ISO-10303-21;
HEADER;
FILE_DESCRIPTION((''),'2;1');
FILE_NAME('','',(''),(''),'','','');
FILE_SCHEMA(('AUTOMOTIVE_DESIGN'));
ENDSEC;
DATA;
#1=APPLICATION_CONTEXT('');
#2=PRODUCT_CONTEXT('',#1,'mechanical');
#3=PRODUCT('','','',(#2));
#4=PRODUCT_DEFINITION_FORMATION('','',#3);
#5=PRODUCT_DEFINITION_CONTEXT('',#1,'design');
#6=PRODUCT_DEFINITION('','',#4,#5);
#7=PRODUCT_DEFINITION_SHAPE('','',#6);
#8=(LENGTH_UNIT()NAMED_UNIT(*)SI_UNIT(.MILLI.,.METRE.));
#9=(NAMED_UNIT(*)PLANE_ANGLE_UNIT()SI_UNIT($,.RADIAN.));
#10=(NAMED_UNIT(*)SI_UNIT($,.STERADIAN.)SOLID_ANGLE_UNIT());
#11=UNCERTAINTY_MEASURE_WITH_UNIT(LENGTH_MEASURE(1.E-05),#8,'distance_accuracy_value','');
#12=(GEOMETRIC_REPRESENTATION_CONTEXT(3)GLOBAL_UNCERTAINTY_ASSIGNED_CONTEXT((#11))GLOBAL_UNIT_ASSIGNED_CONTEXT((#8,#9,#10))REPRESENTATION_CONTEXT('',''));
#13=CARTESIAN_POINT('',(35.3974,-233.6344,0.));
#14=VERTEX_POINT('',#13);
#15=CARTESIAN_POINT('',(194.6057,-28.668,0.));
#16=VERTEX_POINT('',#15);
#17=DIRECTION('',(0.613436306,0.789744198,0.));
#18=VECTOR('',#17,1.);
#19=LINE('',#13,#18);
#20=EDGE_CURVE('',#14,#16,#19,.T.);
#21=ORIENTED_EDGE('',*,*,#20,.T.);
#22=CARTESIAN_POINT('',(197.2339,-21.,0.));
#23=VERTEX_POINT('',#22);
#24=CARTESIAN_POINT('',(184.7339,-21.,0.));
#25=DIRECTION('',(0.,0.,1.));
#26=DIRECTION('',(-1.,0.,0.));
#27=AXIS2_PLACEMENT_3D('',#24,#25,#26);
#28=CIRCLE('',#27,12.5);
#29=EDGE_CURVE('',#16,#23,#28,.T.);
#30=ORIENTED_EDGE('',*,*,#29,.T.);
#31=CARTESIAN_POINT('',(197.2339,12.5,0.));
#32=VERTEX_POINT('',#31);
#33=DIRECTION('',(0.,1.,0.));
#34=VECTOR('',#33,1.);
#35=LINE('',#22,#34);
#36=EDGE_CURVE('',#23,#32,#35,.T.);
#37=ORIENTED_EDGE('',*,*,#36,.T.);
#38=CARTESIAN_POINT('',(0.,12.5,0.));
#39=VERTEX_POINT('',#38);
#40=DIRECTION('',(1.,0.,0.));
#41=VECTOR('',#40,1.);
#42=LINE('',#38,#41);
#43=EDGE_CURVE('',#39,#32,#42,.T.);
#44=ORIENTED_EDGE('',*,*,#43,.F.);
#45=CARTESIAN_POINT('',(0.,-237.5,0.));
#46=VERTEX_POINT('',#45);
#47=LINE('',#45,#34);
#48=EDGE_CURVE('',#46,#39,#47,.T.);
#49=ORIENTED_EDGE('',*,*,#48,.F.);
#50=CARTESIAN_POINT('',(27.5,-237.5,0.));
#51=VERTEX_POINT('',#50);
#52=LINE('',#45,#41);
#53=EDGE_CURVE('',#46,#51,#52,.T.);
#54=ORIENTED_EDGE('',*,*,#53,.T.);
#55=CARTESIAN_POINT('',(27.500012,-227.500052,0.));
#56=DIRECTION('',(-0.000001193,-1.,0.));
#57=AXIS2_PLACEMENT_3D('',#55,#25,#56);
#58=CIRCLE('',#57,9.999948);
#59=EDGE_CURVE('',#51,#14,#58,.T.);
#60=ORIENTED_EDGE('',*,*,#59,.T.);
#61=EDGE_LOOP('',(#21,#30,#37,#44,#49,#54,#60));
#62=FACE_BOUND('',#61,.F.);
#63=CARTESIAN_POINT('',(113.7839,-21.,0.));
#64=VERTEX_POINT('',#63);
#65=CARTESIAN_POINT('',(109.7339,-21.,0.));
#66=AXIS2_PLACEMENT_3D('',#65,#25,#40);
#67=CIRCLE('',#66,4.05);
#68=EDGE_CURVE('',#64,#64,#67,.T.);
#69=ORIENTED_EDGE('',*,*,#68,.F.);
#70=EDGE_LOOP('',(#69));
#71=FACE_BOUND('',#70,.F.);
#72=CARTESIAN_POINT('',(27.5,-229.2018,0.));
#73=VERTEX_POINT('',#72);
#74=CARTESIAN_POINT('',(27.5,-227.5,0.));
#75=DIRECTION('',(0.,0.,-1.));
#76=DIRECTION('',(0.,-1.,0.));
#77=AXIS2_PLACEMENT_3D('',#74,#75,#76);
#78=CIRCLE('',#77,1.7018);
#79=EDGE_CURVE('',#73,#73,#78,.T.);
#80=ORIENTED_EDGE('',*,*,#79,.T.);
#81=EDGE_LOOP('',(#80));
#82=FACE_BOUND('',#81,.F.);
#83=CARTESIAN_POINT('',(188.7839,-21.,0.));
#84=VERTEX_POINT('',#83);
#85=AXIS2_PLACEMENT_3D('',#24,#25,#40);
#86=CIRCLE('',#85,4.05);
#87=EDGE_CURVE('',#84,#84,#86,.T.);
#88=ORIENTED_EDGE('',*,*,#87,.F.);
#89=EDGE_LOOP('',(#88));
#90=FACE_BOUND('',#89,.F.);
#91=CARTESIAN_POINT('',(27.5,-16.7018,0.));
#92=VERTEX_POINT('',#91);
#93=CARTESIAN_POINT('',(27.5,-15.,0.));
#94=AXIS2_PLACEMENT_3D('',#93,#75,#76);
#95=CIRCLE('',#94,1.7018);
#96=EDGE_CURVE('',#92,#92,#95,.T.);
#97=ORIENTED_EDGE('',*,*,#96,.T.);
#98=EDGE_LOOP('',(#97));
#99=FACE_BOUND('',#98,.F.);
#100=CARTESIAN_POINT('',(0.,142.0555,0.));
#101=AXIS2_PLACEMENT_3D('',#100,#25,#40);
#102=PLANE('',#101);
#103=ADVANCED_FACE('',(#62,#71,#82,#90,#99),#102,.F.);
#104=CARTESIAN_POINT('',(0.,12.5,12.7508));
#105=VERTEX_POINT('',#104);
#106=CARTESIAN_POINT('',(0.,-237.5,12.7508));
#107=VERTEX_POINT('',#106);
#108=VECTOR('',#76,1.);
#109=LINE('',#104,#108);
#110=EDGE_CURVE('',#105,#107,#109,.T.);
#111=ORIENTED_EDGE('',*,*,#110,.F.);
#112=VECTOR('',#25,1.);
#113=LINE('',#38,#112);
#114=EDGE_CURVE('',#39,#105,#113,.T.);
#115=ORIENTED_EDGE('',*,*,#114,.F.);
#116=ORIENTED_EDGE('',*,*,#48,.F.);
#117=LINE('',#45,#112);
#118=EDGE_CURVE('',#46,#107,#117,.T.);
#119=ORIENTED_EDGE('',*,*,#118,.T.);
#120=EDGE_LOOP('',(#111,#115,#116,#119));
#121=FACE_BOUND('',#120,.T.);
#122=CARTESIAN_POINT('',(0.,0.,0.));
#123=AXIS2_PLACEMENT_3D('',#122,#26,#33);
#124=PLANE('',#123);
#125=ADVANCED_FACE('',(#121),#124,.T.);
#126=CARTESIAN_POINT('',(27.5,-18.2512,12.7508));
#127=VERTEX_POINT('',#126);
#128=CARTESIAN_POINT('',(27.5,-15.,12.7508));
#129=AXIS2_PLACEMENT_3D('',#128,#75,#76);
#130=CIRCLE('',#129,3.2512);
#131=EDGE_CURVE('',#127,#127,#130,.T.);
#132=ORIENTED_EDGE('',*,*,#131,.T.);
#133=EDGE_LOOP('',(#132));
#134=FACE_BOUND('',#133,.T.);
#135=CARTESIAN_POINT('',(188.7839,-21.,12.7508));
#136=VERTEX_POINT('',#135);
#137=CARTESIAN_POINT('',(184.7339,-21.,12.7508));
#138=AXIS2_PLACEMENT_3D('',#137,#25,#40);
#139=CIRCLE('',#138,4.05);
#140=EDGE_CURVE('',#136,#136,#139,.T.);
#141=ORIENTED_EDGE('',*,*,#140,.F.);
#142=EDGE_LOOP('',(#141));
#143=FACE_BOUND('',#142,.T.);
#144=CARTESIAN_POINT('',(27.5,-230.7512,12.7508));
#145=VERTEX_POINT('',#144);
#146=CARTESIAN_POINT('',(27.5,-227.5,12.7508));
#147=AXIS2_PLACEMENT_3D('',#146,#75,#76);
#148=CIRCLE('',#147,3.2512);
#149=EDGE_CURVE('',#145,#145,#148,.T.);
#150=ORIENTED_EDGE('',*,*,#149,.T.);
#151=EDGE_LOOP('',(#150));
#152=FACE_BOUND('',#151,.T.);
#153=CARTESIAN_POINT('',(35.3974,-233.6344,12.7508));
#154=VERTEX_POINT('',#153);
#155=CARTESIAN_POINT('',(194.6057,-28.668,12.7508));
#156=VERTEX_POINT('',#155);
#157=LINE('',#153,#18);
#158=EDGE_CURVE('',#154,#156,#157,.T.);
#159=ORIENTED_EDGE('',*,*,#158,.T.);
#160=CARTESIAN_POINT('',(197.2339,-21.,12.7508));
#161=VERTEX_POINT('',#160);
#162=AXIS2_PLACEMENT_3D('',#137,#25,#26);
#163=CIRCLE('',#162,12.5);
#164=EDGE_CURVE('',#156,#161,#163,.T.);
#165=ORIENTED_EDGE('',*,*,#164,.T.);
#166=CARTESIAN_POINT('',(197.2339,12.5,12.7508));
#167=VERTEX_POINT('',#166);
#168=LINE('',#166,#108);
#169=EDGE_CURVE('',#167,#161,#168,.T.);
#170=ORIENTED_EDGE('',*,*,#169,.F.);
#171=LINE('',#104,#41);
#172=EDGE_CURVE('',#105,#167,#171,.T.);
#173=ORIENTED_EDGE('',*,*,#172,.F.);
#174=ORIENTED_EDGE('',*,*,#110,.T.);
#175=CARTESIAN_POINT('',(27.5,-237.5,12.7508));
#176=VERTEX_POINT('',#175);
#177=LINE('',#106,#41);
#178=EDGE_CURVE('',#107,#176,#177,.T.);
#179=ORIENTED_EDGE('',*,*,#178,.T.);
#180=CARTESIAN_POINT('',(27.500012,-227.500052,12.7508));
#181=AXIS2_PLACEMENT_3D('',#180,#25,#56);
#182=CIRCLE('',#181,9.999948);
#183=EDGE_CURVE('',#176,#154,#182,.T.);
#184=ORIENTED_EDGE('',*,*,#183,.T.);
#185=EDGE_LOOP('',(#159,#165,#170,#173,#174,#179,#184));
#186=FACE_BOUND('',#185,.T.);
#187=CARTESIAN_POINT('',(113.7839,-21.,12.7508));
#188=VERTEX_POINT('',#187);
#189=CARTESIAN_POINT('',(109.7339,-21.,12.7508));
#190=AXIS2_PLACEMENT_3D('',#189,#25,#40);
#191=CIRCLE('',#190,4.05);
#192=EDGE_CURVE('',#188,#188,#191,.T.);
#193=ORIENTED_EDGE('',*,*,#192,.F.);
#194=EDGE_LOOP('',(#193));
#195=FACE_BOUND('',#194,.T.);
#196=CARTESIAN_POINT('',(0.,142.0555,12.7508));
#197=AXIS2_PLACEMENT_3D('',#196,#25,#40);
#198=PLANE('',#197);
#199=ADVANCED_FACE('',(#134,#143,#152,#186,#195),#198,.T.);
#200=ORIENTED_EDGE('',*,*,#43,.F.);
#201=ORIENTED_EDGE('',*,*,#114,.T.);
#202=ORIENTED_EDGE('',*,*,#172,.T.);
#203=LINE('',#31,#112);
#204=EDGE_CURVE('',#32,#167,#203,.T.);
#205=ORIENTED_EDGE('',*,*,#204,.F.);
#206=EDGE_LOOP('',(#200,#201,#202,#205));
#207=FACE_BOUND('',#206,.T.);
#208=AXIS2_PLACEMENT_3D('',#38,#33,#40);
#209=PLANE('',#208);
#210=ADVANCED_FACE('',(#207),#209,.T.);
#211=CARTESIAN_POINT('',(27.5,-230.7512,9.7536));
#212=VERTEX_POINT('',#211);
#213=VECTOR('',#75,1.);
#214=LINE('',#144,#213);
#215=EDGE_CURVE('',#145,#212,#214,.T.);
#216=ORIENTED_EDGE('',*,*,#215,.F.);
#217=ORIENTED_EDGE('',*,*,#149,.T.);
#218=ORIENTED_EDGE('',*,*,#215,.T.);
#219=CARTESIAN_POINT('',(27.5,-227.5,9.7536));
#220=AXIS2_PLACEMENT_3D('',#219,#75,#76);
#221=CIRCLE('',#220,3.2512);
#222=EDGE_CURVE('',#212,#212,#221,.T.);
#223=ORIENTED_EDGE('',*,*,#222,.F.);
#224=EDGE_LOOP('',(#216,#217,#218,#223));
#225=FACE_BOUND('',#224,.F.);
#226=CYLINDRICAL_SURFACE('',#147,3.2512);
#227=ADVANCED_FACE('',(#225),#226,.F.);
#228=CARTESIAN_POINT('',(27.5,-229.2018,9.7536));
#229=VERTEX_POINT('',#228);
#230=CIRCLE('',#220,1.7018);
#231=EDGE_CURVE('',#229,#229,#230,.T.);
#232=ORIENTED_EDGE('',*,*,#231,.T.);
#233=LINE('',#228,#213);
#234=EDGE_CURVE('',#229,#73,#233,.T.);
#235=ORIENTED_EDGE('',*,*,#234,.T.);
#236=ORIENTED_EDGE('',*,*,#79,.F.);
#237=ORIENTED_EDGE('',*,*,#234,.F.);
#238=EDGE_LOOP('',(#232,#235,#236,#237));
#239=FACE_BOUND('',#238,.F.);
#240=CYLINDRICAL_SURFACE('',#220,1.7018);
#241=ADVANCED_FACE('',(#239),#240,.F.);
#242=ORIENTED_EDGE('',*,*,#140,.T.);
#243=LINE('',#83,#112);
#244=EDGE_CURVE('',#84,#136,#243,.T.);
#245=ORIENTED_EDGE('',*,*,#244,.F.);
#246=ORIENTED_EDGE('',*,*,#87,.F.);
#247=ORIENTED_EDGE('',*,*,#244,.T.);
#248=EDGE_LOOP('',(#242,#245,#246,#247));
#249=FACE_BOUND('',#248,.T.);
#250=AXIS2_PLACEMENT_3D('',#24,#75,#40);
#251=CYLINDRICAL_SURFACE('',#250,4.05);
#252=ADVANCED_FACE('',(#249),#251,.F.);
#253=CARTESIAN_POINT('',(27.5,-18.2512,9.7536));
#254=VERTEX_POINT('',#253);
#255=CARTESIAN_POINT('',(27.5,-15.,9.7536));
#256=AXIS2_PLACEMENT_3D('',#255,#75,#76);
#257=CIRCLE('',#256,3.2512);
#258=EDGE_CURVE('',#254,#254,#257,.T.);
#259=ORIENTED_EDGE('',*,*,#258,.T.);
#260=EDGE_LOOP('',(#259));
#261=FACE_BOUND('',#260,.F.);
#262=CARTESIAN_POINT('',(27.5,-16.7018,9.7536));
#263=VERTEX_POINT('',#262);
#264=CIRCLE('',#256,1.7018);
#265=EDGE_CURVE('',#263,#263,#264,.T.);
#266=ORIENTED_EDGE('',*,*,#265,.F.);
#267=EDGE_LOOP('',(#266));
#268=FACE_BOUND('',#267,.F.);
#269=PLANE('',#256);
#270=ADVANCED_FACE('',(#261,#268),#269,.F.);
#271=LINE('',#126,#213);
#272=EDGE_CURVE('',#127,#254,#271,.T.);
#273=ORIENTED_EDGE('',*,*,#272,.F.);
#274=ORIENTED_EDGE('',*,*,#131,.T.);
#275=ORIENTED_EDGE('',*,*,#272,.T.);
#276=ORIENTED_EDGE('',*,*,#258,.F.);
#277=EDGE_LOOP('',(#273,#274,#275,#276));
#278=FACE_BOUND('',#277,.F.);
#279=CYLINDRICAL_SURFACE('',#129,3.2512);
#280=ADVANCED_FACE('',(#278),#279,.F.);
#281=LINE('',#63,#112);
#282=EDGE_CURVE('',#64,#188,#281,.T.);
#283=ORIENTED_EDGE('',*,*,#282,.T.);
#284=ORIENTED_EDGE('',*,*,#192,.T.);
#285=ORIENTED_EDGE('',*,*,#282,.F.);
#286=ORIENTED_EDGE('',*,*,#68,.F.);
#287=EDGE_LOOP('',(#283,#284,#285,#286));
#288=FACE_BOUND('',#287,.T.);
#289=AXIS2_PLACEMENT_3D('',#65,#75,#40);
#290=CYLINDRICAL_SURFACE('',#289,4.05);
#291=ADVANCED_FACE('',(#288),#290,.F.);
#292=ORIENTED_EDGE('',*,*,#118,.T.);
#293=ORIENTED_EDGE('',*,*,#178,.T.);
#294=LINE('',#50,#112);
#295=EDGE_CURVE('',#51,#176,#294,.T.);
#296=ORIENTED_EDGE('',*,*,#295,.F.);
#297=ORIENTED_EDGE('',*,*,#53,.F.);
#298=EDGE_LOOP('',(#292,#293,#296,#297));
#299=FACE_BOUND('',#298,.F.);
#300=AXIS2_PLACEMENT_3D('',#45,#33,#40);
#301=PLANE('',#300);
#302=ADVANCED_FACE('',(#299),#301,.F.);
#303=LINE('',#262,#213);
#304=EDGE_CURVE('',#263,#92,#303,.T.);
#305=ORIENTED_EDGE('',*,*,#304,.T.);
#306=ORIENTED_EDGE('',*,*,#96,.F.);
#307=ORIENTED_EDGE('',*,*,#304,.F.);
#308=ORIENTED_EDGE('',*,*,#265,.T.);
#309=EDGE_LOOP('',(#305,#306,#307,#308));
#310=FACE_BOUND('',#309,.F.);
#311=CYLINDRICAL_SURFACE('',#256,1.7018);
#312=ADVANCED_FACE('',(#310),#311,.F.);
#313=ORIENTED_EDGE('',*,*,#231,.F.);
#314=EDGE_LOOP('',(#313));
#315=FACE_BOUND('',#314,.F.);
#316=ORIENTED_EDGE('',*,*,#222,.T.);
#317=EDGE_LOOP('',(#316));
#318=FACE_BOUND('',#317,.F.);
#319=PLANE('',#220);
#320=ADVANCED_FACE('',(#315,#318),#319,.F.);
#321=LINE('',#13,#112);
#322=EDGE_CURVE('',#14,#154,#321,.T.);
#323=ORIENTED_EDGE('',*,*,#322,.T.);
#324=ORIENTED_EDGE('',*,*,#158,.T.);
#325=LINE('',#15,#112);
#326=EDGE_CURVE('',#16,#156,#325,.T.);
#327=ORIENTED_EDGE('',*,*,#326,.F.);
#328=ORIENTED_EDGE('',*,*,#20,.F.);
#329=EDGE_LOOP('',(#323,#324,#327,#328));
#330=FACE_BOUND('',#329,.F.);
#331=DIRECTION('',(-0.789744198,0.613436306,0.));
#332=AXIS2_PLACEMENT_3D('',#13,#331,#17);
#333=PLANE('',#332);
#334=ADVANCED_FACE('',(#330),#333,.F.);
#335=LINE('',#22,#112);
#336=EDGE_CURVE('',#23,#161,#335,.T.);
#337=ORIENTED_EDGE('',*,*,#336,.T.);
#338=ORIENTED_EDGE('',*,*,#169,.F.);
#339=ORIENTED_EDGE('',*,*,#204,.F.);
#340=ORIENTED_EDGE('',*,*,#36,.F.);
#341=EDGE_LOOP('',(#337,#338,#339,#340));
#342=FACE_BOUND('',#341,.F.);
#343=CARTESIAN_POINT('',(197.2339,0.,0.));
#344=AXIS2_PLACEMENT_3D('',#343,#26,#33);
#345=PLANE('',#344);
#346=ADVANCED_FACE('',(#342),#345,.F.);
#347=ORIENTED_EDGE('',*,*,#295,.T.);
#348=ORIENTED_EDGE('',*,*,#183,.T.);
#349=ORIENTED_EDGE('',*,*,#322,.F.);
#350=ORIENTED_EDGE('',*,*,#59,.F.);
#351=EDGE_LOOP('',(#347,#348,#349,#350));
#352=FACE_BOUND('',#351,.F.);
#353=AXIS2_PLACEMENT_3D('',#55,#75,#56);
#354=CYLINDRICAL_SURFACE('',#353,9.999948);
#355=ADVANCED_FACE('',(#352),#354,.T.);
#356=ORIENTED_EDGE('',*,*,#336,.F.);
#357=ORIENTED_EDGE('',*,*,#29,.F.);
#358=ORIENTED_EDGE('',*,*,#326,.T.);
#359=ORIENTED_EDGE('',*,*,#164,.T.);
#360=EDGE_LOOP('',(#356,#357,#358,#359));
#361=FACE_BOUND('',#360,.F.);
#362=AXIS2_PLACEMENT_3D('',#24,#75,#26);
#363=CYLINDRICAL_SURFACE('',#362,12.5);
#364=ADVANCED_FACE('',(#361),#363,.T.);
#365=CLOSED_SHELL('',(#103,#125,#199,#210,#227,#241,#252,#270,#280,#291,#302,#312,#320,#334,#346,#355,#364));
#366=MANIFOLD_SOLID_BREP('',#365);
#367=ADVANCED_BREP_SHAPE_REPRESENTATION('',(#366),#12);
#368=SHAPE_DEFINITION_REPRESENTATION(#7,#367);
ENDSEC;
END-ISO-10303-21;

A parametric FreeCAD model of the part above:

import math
import FreeCAD as App
import Part
import Sketcher

V = App.Vector
Q = App.Units.Quantity

doc = App.newDocument("Part")
params = doc.addObject("Spreadsheet::Sheet", "Params")
for row, (alias, value) in enumerate([
    ("sketch1_radius", "10 mm"),
    ("sketch1_height", "250 mm"),
    ("sketch1_width", "27.5 mm"),
    ("sketch1_diameter", "8.1 mm"),
    ("sketch1_radius2", "12.5 mm"),
    ("pad1_length", "12.7508 mm"),
    ("sketch2_diameter", "3.1 mm"),
    ("hole_diameter", "3.4036 mm"),
    ("hole_cbore_diameter", "6.5024 mm"),
    ("hole_cbore_depth", "2.9972 mm"),
], start=1):
    params.set(f"A{row}", alias)
    params.set(f"B{row}", "=" + value)
    params.setAlias(f"B{row}", alias)

body = doc.addObject("PartDesign::Body", "Body")

# Sketch on XY plane
sketch1 = body.newObject("Sketcher::SketchObject", "Sketch")
sketch1.AttachmentSupport = (doc.getObject("XY_Plane"), [""])
sketch1.MapMode = "FlatFace"
sketch1.addGeometry(Part.LineSegment(V(197.2, 12.5, 0), V(0, 12.5, 0)), False)
sketch1.addGeometry(Part.LineSegment(V(0, 12.5, 0), V(0, -237.5, 0)), False)
sketch1.addGeometry(Part.LineSegment(V(0, -237.5, 0), V(27.5, -237.5, 0)), False)
sketch1.addGeometry(Part.ArcOfCircle(Part.Circle(V(27.5, -227.5, 0), V(0, 0, 1), 10), math.radians(-90), math.radians(-38)), False)
sketch1.addGeometry(Part.LineSegment(V(35.4, -233.6, 0), V(194.6, -28.7, 0)), False)
sketch1.addGeometry(Part.ArcOfCircle(Part.Circle(V(184.7, -21, 0), V(0, 0, 1), 12.5), math.radians(-38), math.radians(0)), False)
sketch1.addGeometry(Part.LineSegment(V(197.2, -21, 0), V(197.2, 12.5, 0)), False)
sketch1.addGeometry(Part.Circle(V(184.7, -21, 0), V(0, 0, 1), 4), False)
sketch1.addGeometry(Part.Circle(V(109.7, -21, 0), V(0, 0, 1), 4), False)
sketch1.addConstraint(Sketcher.Constraint("Coincident", 0, 2, 1, 1))
sketch1.addConstraint(Sketcher.Constraint("Coincident", 1, 2, 2, 1))
sketch1.addConstraint(Sketcher.Constraint("Tangent", 2, 2, 3, 1))
sketch1.addConstraint(Sketcher.Constraint("Tangent", 3, 2, 4, 1))
sketch1.addConstraint(Sketcher.Constraint("Tangent", 4, 2, 5, 1))
sketch1.addConstraint(Sketcher.Constraint("Tangent", 5, 2, 6, 1))
sketch1.addConstraint(Sketcher.Constraint("Coincident", 6, 2, 0, 1))
sketch1.addConstraint(Sketcher.Constraint("Horizontal", 0))
sketch1.addConstraint(Sketcher.Constraint("Vertical", 1))
sketch1.addConstraint(Sketcher.Constraint("Horizontal", 2))
sketch1.addConstraint(Sketcher.Constraint("Vertical", 6))
sketch1.addConstraint(Sketcher.Constraint("Coincident", 7, 3, 5, 3))
sketch1.addConstraint(Sketcher.Constraint("Equal", 7, 8))
sketch1.addConstraint(Sketcher.Constraint("PointOnObject", 0, 2, -2))
sketch1.addConstraint(Sketcher.Constraint("Horizontal", 7, 3, 8, 3))
sketch1.addConstraint(Sketcher.Constraint("Radius", 3, Q("10 mm")))
sketch1.addConstraint(Sketcher.Constraint("DistanceY", 1, 2, 1, 1, Q("250 mm")))
sketch1.addConstraint(Sketcher.Constraint("DistanceX", 2, 1, 2, 2, Q("27.5 mm")))
sketch1.addConstraint(Sketcher.Constraint("Diameter", 7, Q("8.1 mm")))
sketch1.addConstraint(Sketcher.Constraint("Radius", 5, Q("12.5 mm")))
sketch1.addConstraint(Sketcher.Constraint("DistanceY", 6, 1, 6, 2, Q("33.5 mm")))
sketch1.addConstraint(Sketcher.Constraint("DistanceY", 5, 3, -1, 1, Q("21 mm")))
sketch1.addConstraint(Sketcher.Constraint("DistanceX", 8, 3, 5, 3, Q("75 mm")))
sketch1.addConstraint(Sketcher.Constraint("DistanceX", 0, 2, 0, 1, Q("197.234 mm")))
sketch1.setExpression("Constraints[15]", "Params.sketch1_radius")
sketch1.setExpression("Constraints[16]", "Params.sketch1_height")
sketch1.setExpression("Constraints[17]", "Params.sketch1_width")
sketch1.setExpression("Constraints[18]", "Params.sketch1_diameter")
sketch1.setExpression("Constraints[19]", "Params.sketch1_radius2")
pad1 = body.newObject("PartDesign::Pad", "Pad")
pad1.Profile = sketch1
pad1.setExpression("Length", "Params.pad1_length")

# Sketch on XY plane
sketch2 = body.newObject("Sketcher::SketchObject", "Sketch001")
sketch2.AttachmentSupport = (doc.getObject("XY_Plane"), [""])
sketch2.MapMode = "FlatFace"
sketch2.addGeometry(Part.Circle(V(27.5, -227.5, 0), V(0, 0, 1), 1.6), False)
sketch2.addGeometry(Part.Circle(V(27.5, -15, 0), V(0, 0, 1), 1.6), False)
sketch2.addConstraint(Sketcher.Constraint("Equal", 0, 1))
sketch2.addConstraint(Sketcher.Constraint("Vertical", 0, 3, 1, 3))
sketch2.addConstraint(Sketcher.Constraint("Diameter", 0, Q("3.1 mm")))
sketch2.addConstraint(Sketcher.Constraint("DistanceY", 1, 3, -1, 1, Q("15 mm")))
sketch2.addConstraint(Sketcher.Constraint("DistanceX", -1, 1, 0, 3, Q("27.5 mm")))
sketch2.addConstraint(Sketcher.Constraint("DistanceY", 0, 3, -1, 1, Q("227.5 mm")))
sketch2.setExpression("Constraints[2]", "Params.sketch2_diameter")
pocket1 = body.newObject("PartDesign::Pocket", "Pocket")
pocket1.Profile = sketch2
pocket1.Type = "ThroughAll"
pocket1.Reversed = True

# Sketch on XY plane
sketch3 = body.newObject("Sketcher::SketchObject", "Sketch002")
sketch3.AttachmentSupport = (doc.getObject("XY_Plane"), [""])
sketch3.MapMode = "FlatFace"
sketch3.AttachmentOffset = App.Placement(V(0, 0, 12.7508), App.Rotation())
sketch3.addGeometry(Part.Circle(V(27.5, -15, 0), V(0, 0, 1), 1.7), False)
sketch3.addGeometry(Part.Circle(V(27.5, -227.5, 0), V(0, 0, 1), 1.7), False)
sketch3.addConstraint(Sketcher.Constraint("Equal", 0, 1))
sketch3.addConstraint(Sketcher.Constraint("Vertical", 0, 3, 1, 3))
sketch3.addConstraint(Sketcher.Constraint("DistanceY", 0, 3, -1, 1, Q("15 mm")))
sketch3.addConstraint(Sketcher.Constraint("Diameter", 0, Q("3.4036 mm")))
sketch3.addConstraint(Sketcher.Constraint("DistanceX", -1, 1, 0, 3, Q("27.5 mm")))
sketch3.addConstraint(Sketcher.Constraint("DistanceY", 1, 3, -1, 1, Q("227.5 mm")))
doc.recompute()
hole = body.newObject("PartDesign::Hole", "Hole")
hole.Profile = sketch3
hole.ThreadType = "None"
hole.setExpression("Diameter", "Params.hole_diameter")
hole.DepthType = "ThroughAll"
hole.HoleCutType = "Counterbore"
hole.setExpression("HoleCutDiameter", "Params.hole_cbore_diameter")
hole.setExpression("HoleCutDepth", "Params.hole_cbore_depth")

doc.recompute()
